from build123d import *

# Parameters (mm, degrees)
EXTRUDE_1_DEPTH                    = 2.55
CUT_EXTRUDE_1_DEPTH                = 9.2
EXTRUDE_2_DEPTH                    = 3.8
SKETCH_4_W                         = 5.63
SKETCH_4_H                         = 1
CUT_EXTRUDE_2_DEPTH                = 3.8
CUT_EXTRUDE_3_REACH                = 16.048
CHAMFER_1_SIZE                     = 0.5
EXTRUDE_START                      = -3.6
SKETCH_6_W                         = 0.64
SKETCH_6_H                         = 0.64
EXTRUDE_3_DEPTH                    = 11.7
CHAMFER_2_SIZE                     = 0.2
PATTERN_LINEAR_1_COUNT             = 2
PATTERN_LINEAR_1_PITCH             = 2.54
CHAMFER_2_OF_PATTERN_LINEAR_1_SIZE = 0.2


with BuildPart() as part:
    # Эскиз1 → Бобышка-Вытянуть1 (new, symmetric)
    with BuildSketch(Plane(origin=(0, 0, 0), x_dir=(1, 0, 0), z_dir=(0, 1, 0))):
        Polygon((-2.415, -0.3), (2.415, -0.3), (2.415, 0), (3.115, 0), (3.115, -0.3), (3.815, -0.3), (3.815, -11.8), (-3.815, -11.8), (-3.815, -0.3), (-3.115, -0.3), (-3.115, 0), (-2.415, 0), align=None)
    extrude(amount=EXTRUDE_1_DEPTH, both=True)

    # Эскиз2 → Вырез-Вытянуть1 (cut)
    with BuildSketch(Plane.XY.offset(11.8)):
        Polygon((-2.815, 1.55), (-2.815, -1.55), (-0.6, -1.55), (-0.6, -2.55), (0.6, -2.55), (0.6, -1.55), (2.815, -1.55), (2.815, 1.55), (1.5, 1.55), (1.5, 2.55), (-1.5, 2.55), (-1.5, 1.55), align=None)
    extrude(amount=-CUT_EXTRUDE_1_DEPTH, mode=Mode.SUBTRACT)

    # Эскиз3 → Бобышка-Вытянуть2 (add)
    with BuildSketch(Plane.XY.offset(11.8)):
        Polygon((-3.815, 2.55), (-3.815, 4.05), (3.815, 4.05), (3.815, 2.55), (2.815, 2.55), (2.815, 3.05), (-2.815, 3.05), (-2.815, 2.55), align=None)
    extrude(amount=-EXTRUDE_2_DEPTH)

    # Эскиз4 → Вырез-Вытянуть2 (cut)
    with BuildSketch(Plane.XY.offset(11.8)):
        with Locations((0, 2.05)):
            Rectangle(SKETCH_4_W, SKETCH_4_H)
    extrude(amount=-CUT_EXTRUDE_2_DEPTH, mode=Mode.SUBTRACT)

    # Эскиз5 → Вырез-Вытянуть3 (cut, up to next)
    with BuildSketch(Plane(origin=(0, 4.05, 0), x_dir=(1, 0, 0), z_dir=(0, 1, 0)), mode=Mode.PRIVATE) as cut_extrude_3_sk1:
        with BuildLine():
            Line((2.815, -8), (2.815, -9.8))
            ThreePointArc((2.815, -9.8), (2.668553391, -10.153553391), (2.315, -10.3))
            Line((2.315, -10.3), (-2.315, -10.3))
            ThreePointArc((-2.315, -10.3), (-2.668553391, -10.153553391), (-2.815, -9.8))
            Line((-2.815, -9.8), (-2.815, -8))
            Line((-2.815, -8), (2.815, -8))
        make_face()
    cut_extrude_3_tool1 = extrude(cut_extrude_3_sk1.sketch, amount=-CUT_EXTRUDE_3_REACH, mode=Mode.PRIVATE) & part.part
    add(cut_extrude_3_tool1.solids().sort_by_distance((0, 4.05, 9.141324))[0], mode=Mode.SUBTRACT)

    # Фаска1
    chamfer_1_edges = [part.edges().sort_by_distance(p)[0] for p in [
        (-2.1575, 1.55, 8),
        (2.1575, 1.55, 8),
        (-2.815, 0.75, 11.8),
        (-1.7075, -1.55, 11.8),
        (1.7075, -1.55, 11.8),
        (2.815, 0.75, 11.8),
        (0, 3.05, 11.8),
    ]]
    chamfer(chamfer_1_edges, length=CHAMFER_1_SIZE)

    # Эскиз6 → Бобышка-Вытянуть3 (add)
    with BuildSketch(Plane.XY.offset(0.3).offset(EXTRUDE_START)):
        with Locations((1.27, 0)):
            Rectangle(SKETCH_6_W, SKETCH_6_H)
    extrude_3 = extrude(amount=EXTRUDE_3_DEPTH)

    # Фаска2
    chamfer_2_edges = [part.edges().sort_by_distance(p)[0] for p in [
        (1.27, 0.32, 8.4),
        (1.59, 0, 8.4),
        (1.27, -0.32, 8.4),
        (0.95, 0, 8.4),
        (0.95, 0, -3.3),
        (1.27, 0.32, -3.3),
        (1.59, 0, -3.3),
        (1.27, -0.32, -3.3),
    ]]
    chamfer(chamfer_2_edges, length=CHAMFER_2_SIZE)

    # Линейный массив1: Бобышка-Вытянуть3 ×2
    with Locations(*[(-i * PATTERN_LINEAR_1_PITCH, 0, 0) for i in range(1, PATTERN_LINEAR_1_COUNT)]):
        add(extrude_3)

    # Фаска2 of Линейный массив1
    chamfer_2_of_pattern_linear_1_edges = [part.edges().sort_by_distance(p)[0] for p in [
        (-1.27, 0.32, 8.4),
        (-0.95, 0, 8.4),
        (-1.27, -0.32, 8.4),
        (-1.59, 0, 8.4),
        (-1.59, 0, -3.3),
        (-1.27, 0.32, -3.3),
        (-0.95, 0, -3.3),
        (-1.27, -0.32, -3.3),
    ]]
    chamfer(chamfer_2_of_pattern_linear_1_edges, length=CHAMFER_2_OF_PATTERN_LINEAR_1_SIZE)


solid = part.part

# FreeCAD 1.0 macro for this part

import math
import FreeCAD as App
import Part
import Sketcher

V = App.Vector


def edges_at(feature, points):
    """Names of the edges that pass closest to the given points."""
    edges = feature.Shape.Edges
    near = lambda p: min(range(len(edges)), key=lambda i: edges[i].distToShape(Part.Vertex(*p))[0])
    return sorted({f"Edge{near(p) + 1}" for p in points})

doc = App.newDocument("Part")
body = doc.addObject("PartDesign::Body", "Body")

sketch1 = body.newObject("Sketcher::SketchObject", "Sketch")
sketch1.AttachmentSupport = (doc.getObject("XZ_Plane"), [""])
sketch1.MapMode = "FlatFace"
sketch1.addGeometry([
    Part.LineSegment(V(2.42, 0.3, 0), V(-2.42, 0.3, 0)),
    Part.LineSegment(V(-2.42, 0.3, 0), V(-2.42, 0, 0)),
    Part.LineSegment(V(-2.42, 0, 0), V(-3.12, 0, 0)),
    Part.LineSegment(V(-3.12, 0, 0), V(-3.12, 0.3, 0)),
    Part.LineSegment(V(-3.12, 0.3, 0), V(-3.81, 0.3, 0)),
    Part.LineSegment(V(-3.81, 0.3, 0), V(-3.81, 11.8, 0)),
    Part.LineSegment(V(-3.81, 11.8, 0), V(3.81, 11.8, 0)),
    Part.LineSegment(V(3.81, 11.8, 0), V(3.81, 0.3, 0)),
    Part.LineSegment(V(3.81, 0.3, 0), V(3.12, 0.3, 0)),
    Part.LineSegment(V(3.12, 0.3, 0), V(3.12, 0, 0)),
    Part.LineSegment(V(3.12, 0, 0), V(2.42, 0, 0)),
    Part.LineSegment(V(2.42, 0, 0), V(2.42, 0.3, 0)),
], False)
sketch1.addConstraint([
    Sketcher.Constraint("Coincident", 0, 2, 1, 1),
    Sketcher.Constraint("Coincident", 1, 2, 2, 1),
    Sketcher.Constraint("Coincident", 2, 2, 3, 1),
    Sketcher.Constraint("Coincident", 3, 2, 4, 1),
    Sketcher.Constraint("Coincident", 4, 2, 5, 1),
    Sketcher.Constraint("Coincident", 5, 2, 6, 1),
    Sketcher.Constraint("Coincident", 6, 2, 7, 1),
    Sketcher.Constraint("Coincident", 7, 2, 8, 1),
    Sketcher.Constraint("Coincident", 8, 2, 9, 1),
    Sketcher.Constraint("Coincident", 9, 2, 10, 1),
    Sketcher.Constraint("Coincident", 10, 2, 11, 1),
    Sketcher.Constraint("Coincident", 11, 2, 0, 1),
    Sketcher.Constraint("Horizontal", 0),
    Sketcher.Constraint("Vertical", 1),
    Sketcher.Constraint("Horizontal", 2),
    Sketcher.Constraint("Vertical", 3),
    Sketcher.Constraint("Horizontal", 4),
    Sketcher.Constraint("Vertical", 5),
    Sketcher.Constraint("Horizontal", 6),
    Sketcher.Constraint("Vertical", 7),
    Sketcher.Constraint("Horizontal", 8),
    Sketcher.Constraint("Vertical", 9),
    Sketcher.Constraint("Horizontal", 10),
    Sketcher.Constraint("Vertical", 11),
    Sketcher.Constraint("Symmetric", 2, 2, 9, 2, -1, 1),
    Sketcher.Constraint("Symmetric", 4, 2, 7, 2, -2),
    Sketcher.Constraint("Symmetric", 1, 2, 10, 2, -2),
    Sketcher.Constraint("Horizontal", 0, 2, 3, 2),
    Sketcher.Constraint("Equal", 2, 4),
    Sketcher.Constraint("DistanceX", 2, 2, 2, 1, 0.7),
    Sketcher.Constraint("DistanceY", 1, 2, 1, 1, 0.3),
    Sketcher.Constraint("DistanceY", 5, 1, 5, 2, 11.5),
    Sketcher.Constraint("DistanceX", 0, 2, 0, 1, 4.83),
])
pad1 = body.newObject("PartDesign::Pad", "Pad")
pad1.Profile = sketch1
pad1.Length = 5.1
pad1.Midplane = True

sketch2 = body.newObject("Sketcher::SketchObject", "Sketch001")
sketch2.AttachmentSupport = (doc.getObject("XY_Plane"), [""])
sketch2.MapMode = "FlatFace"
sketch2.AttachmentOffset = App.Placement(V(0, 0, 11.8), App.Rotation())
sketch2.addGeometry([
    Part.LineSegment(V(-2.8, 1.6, 0), V(-2.8, -1.6, 0)),
    Part.LineSegment(V(-2.8, -1.6, 0), V(-0.6, -1.6, 0)),
    Part.LineSegment(V(-0.6, -1.6, 0), V(-0.6, -2.5, 0)),
    Part.LineSegment(V(-0.6, -2.5, 0), V(0.6, -2.5, 0)),
    Part.LineSegment(V(0.6, -2.5, 0), V(0.6, -1.6, 0)),
    Part.LineSegment(V(0.6, -1.6, 0), V(2.8, -1.6, 0)),
    Part.LineSegment(V(2.8, -1.6, 0), V(2.8, 1.6, 0)),
    Part.LineSegment(V(2.8, 1.6, 0), V(1.5, 1.6, 0)),
    Part.LineSegment(V(1.5, 1.6, 0), V(1.5, 2.5, 0)),
    Part.LineSegment(V(1.5, 2.5, 0), V(-1.5, 2.5, 0)),
    Part.LineSegment(V(-1.5, 2.5, 0), V(-1.5, 1.6, 0)),
    Part.LineSegment(V(-1.5, 1.6, 0), V(-2.8, 1.6, 0)),
], False)
sketch2.addConstraint([
    Sketcher.Constraint("Coincident", 0, 2, 1, 1),
    Sketcher.Constraint("Coincident", 1, 2, 2, 1),
    Sketcher.Constraint("Coincident", 2, 2, 3, 1),
    Sketcher.Constraint("Coincident", 3, 2, 4, 1),
    Sketcher.Constraint("Coincident", 4, 2, 5, 1),
    Sketcher.Constraint("Coincident", 5, 2, 6, 1),
    Sketcher.Constraint("Coincident", 6, 2, 7, 1),
    Sketcher.Constraint("Coincident", 7, 2, 8, 1),
    Sketcher.Constraint("Coincident", 8, 2, 9, 1),
    Sketcher.Constraint("Coincident", 9, 2, 10, 1),
    Sketcher.Constraint("Coincident", 10, 2, 11, 1),
    Sketcher.Constraint("Coincident", 11, 2, 0, 1),
    Sketcher.Constraint("Vertical", 0),
    Sketcher.Constraint("Horizontal", 1),
    Sketcher.Constraint("Vertical", 2),
    Sketcher.Constraint("Horizontal", 3),
    Sketcher.Constraint("Vertical", 4),
    Sketcher.Constraint("Horizontal", 5),
    Sketcher.Constraint("Vertical", 6),
    Sketcher.Constraint("Horizontal", 7),
    Sketcher.Constraint("Vertical", 8),
    Sketcher.Constraint("Horizontal", 9),
    Sketcher.Constraint("Vertical", 10),
    Sketcher.Constraint("Horizontal", 11),
    Sketcher.Constraint("Symmetric", 0, 2, 6, 2, -1, 1),
    Sketcher.Constraint("Symmetric", 1, 2, 4, 2, -2),
    Sketcher.Constraint("Symmetric", 7, 2, 10, 2, -2),
    Sketcher.Constraint("Equal", 4, 8),
    Sketcher.Constraint("DistanceX", 9, 2, 9, 1, 3.0),
    Sketcher.Constraint("DistanceY", 2, 2, 2, 1, 1.0),
    Sketcher.Constraint("DistanceX", 3, 1, 3, 2, 1.2),
    Sketcher.Constraint("DistanceY", 0, 2, 0, 1, 3.1),
    Sketcher.Constraint("DistanceX", 1, 1, 1, 2, 2.215),
])
pocket1 = body.newObject("PartDesign::Pocket", "Pocket")
pocket1.Profile = sketch2
pocket1.Length = 9.2

sketch3 = body.newObject("Sketcher::SketchObject", "Sketch002")
sketch3.AttachmentSupport = (doc.getObject("XY_Plane"), [""])
sketch3.MapMode = "FlatFace"
sketch3.AttachmentOffset = App.Placement(V(0, 0, 11.8), App.Rotation())
sketch3.addGeometry([
    Part.LineSegment(V(-3.8, 4, 0), V(-3.8, 2.5, 0)),
    Part.LineSegment(V(-3.8, 2.5, 0), V(-2.8, 2.5, 0)),
    Part.LineSegment(V(-2.8, 2.5, 0), V(-2.8, 3, 0)),
    Part.LineSegment(V(-2.8, 3, 0), V(2.8, 3, 0)),
    Part.LineSegment(V(2.8, 3, 0), V(2.8, 2.5, 0)),
    Part.LineSegment(V(2.8, 2.5, 0), V(3.8, 2.5, 0)),
    Part.LineSegment(V(3.8, 2.5, 0), V(3.8, 4, 0)),
    Part.LineSegment(V(3.8, 4, 0), V(-3.8, 4, 0)),
], False)
sketch3.addConstraint([
    Sketcher.Constraint("Coincident", 0, 2, 1, 1),
    Sketcher.Constraint("Coincident", 1, 2, 2, 1),
    Sketcher.Constraint("Coincident", 2, 2, 3, 1),
    Sketcher.Constraint("Coincident", 3, 2, 4, 1),
    Sketcher.Constraint("Coincident", 4, 2, 5, 1),
    Sketcher.Constraint("Coincident", 5, 2, 6, 1),
    Sketcher.Constraint("Coincident", 6, 2, 7, 1),
    Sketcher.Constraint("Coincident", 7, 2, 0, 1),
    Sketcher.Constraint("Vertical", 0),
    Sketcher.Constraint("Horizontal", 1),
    Sketcher.Constraint("Vertical", 2),
    Sketcher.Constraint("Horizontal", 3),
    Sketcher.Constraint("Vertical", 4),
    Sketcher.Constraint("Horizontal", 5),
    Sketcher.Constraint("Vertical", 6),
    Sketcher.Constraint("Horizontal", 7),
    Sketcher.Constraint("Symmetric", 1, 2, 4, 2, -2),
    Sketcher.Constraint("Equal", 1, 5),
    Sketcher.Constraint("DistanceX", 1, 1, 1, 2, 1.0),
    Sketcher.Constraint("DistanceY", 0, 2, 0, 1, 1.5),
    Sketcher.Constraint("DistanceY", 2, 1, 2, 2, 0.5),
    Sketcher.Constraint("DistanceX", 3, 1, 3, 2, 5.63),
    Sketcher.Constraint("DistanceY", -1, 1, 0, 2, 2.55),
])
pad2 = body.newObject("PartDesign::Pad", "Pad001")
pad2.Profile = sketch3
pad2.Length = 3.8
pad2.Reversed = True

sketch4 = body.newObject("Sketcher::SketchObject", "Sketch003")
sketch4.AttachmentSupport = (doc.getObject("XY_Plane"), [""])
sketch4.MapMode = "FlatFace"
sketch4.AttachmentOffset = App.Placement(V(0, 0, 11.8), App.Rotation())
sketch4.addGeometry([
    Part.LineSegment(V(-2.8, 2.5, 0), V(-2.8, 1.6, 0)),
    Part.LineSegment(V(-2.8, 1.6, 0), V(2.8, 1.6, 0)),
    Part.LineSegment(V(2.8, 1.6, 0), V(2.8, 2.5, 0)),
    Part.LineSegment(V(2.8, 2.5, 0), V(-2.8, 2.5, 0)),
], False)
sketch4.addConstraint([
    Sketcher.Constraint("Coincident", 0, 2, 1, 1),
    Sketcher.Constraint("Coincident", 1, 2, 2, 1),
    Sketcher.Constraint("Coincident", 2, 2, 3, 1),
    Sketcher.Constraint("Coincident", 3, 2, 0, 1),
    Sketcher.Constraint("Vertical", 0),
    Sketcher.Constraint("Horizontal", 1),
    Sketcher.Constraint("Vertical", 2),
    Sketcher.Constraint("Horizontal", 3),
    Sketcher.Constraint("DistanceY", 0, 2, 0, 1, 1.0),
    Sketcher.Constraint("DistanceX", 1, 1, 1, 2, 5.63),
    Sketcher.Constraint("DistanceY", -1, 1, 0, 2, 1.55),
    Sketcher.Constraint("DistanceX", 0, 2, -1, 1, 2.815),
])
pocket2 = body.newObject("PartDesign::Pocket", "Pocket001")
pocket2.Profile = sketch4
pocket2.Length = 3.8

sketch5 = body.newObject("Sketcher::SketchObject", "Sketch004")
sketch5.AttachmentSupport = (doc.getObject("XZ_Plane"), [""])
sketch5.MapMode = "FlatFace"
sketch5.AttachmentOffset = App.Placement(V(0, 0, -4.05), App.Rotation())
sketch5.addGeometry([
    Part.LineSegment(V(2.81, 9.8, 0), V(2.81, 8, 0)),
    Part.LineSegment(V(2.81, 8, 0), V(-2.81, 8, 0)),
    Part.LineSegment(V(-2.81, 8, 0), V(-2.81, 9.8, 0)),
    Part.ArcOfCircle(Part.Circle(V(-2.32, 9.8, 0), V(0, 0, 1), 0.5), math.radians(90), math.radians(180)),
    Part.LineSegment(V(-2.31, 10.3, 0), V(2.31, 10.3, 0)),
    Part.ArcOfCircle(Part.Circle(V(2.32, 9.8, 0), V(0, 0, 1), 0.5), math.radians(0), math.radians(90)),
], False)
sketch5.addConstraint([
    Sketcher.Constraint("Coincident", 0, 2, 1, 1),
    Sketcher.Constraint("Coincident", 1, 2, 2, 1),
    Sketcher.Constraint("Tangent", 2, 2, 3, 2),
    Sketcher.Constraint("Tangent", 3, 1, 4, 1),
    Sketcher.Constraint("Tangent", 4, 2, 5, 2),
    Sketcher.Constraint("Tangent", 5, 1, 0, 1),
    Sketcher.Constraint("Vertical", 0),
    Sketcher.Constraint("Horizontal", 1),
    Sketcher.Constraint("Vertical", 2),
    Sketcher.Constraint("Horizontal", 4),
    Sketcher.Constraint("Equal", 3, 5),
    Sketcher.Constraint("Radius", 3, 0.5),
    Sketcher.Constraint("DistanceY", 0, 2, 0, 1, 1.8),
    Sketcher.Constraint("DistanceY", -1, 1, 0, 2, 8.0),
    Sketcher.Constraint("DistanceX", 1, 2, 1, 1, 5.63),
    Sketcher.Constraint("DistanceX", 3, 3, -1, 1, 2.315),
])
pocket3 = body.newObject("PartDesign::Pocket", "Pocket002")
pocket3.Profile = sketch5
pocket3.Type = "UpToFirst"
pocket3.Reversed = True
doc.recompute()

chamfer = body.newObject("PartDesign::Chamfer", "Chamfer")
chamfer.Base = (pocket3, edges_at(pocket3, [
    (-2.158, 1.55, 8),
    (2.158, 1.55, 8),
    (-2.815, 0.75, 11.8),
    (-1.708, -1.55, 11.8),
    (1.708, -1.55, 11.8),
    (2.815, 0.75, 11.8),
    (0, 3.05, 11.8),
]))
chamfer.Size = 0.5

sketch6 = body.newObject("Sketcher::SketchObject", "Sketch005")
sketch6.AttachmentSupport = (doc.getObject("XY_Plane"), [""])
sketch6.MapMode = "FlatFace"
sketch6.AttachmentOffset = App.Placement(V(0, 0, -3.3), App.Rotation())
sketch6.addGeometry([
    Part.LineSegment(V(0.9, 0.3, 0), V(0.9, -0.3, 0)),
    Part.LineSegment(V(0.9, -0.3, 0), V(1.6, -0.3, 0)),
    Part.LineSegment(V(1.6, -0.3, 0), V(1.6, 0.3, 0)),
    Part.LineSegment(V(1.6, 0.3, 0), V(0.9, 0.3, 0)),
], False)
sketch6.addConstraint([
    Sketcher.Constraint("Coincident", 0, 2, 1, 1),
    Sketcher.Constraint("Coincident", 1, 2, 2, 1),
    Sketcher.Constraint("Coincident", 2, 2, 3, 1),
    Sketcher.Constraint("Coincident", 3, 2, 0, 1),
    Sketcher.Constraint("Vertical", 0),
    Sketcher.Constraint("Horizontal", 1),
    Sketcher.Constraint("Vertical", 2),
    Sketcher.Constraint("Horizontal", 3),
    Sketcher.Constraint("Equal", 3, 0),
    Sketcher.Constraint("DistanceX", 1, 1, 1, 2, 0.64),
    Sketcher.Constraint("DistanceX", -1, 1, 0, 2, 0.95),
    Sketcher.Constraint("DistanceY", 0, 2, -1, 1, 0.32),
])
pad3 = body.newObject("PartDesign::Pad", "Pad002")
pad3.Profile = sketch6
pad3.Length = 11.7
doc.recompute()

chamfer2 = body.newObject("PartDesign::Chamfer", "Chamfer001")
chamfer2.Base = (pad3, edges_at(pad3, [
    (1.27, 0.32, 8.4),
    (1.59, 0, 8.4),
    (1.27, -0.32, 8.4),
    (0.95, 0, 8.4),
    (0.95, 0, -3.3),
    (1.27, 0.32, -3.3),
    (1.59, 0, -3.3),
    (1.27, -0.32, -3.3),
]))
chamfer2.Size = 0.2
doc.recompute()

linearpattern = body.newObject("PartDesign::LinearPattern", "LinearPattern")
linearpattern.Originals = [pad3]
linearpattern.Direction = (doc.getObject("X_Axis"), [""])
linearpattern.Mode = "offset"
linearpattern.Offset = 2.54
linearpattern.Occurrences = 2
linearpattern.Reversed = True
body.Tip = linearpattern
doc.recompute()

chamfer3 = body.newObject("PartDesign::Chamfer", "Chamfer002")
chamfer3.Base = (linearpattern, edges_at(linearpattern, [
    (-1.27, 0.32, 8.4),
    (-0.95, 0, 8.4),
    (-1.27, -0.32, 8.4),
    (-1.59, 0, 8.4),
    (-1.59, 0, -3.3),
    (-1.27, 0.32, -3.3),
    (-0.95, 0, -3.3),
    (-1.27, -0.32, -3.3),
]))
chamfer3.Size = 0.2

doc.recompute()
